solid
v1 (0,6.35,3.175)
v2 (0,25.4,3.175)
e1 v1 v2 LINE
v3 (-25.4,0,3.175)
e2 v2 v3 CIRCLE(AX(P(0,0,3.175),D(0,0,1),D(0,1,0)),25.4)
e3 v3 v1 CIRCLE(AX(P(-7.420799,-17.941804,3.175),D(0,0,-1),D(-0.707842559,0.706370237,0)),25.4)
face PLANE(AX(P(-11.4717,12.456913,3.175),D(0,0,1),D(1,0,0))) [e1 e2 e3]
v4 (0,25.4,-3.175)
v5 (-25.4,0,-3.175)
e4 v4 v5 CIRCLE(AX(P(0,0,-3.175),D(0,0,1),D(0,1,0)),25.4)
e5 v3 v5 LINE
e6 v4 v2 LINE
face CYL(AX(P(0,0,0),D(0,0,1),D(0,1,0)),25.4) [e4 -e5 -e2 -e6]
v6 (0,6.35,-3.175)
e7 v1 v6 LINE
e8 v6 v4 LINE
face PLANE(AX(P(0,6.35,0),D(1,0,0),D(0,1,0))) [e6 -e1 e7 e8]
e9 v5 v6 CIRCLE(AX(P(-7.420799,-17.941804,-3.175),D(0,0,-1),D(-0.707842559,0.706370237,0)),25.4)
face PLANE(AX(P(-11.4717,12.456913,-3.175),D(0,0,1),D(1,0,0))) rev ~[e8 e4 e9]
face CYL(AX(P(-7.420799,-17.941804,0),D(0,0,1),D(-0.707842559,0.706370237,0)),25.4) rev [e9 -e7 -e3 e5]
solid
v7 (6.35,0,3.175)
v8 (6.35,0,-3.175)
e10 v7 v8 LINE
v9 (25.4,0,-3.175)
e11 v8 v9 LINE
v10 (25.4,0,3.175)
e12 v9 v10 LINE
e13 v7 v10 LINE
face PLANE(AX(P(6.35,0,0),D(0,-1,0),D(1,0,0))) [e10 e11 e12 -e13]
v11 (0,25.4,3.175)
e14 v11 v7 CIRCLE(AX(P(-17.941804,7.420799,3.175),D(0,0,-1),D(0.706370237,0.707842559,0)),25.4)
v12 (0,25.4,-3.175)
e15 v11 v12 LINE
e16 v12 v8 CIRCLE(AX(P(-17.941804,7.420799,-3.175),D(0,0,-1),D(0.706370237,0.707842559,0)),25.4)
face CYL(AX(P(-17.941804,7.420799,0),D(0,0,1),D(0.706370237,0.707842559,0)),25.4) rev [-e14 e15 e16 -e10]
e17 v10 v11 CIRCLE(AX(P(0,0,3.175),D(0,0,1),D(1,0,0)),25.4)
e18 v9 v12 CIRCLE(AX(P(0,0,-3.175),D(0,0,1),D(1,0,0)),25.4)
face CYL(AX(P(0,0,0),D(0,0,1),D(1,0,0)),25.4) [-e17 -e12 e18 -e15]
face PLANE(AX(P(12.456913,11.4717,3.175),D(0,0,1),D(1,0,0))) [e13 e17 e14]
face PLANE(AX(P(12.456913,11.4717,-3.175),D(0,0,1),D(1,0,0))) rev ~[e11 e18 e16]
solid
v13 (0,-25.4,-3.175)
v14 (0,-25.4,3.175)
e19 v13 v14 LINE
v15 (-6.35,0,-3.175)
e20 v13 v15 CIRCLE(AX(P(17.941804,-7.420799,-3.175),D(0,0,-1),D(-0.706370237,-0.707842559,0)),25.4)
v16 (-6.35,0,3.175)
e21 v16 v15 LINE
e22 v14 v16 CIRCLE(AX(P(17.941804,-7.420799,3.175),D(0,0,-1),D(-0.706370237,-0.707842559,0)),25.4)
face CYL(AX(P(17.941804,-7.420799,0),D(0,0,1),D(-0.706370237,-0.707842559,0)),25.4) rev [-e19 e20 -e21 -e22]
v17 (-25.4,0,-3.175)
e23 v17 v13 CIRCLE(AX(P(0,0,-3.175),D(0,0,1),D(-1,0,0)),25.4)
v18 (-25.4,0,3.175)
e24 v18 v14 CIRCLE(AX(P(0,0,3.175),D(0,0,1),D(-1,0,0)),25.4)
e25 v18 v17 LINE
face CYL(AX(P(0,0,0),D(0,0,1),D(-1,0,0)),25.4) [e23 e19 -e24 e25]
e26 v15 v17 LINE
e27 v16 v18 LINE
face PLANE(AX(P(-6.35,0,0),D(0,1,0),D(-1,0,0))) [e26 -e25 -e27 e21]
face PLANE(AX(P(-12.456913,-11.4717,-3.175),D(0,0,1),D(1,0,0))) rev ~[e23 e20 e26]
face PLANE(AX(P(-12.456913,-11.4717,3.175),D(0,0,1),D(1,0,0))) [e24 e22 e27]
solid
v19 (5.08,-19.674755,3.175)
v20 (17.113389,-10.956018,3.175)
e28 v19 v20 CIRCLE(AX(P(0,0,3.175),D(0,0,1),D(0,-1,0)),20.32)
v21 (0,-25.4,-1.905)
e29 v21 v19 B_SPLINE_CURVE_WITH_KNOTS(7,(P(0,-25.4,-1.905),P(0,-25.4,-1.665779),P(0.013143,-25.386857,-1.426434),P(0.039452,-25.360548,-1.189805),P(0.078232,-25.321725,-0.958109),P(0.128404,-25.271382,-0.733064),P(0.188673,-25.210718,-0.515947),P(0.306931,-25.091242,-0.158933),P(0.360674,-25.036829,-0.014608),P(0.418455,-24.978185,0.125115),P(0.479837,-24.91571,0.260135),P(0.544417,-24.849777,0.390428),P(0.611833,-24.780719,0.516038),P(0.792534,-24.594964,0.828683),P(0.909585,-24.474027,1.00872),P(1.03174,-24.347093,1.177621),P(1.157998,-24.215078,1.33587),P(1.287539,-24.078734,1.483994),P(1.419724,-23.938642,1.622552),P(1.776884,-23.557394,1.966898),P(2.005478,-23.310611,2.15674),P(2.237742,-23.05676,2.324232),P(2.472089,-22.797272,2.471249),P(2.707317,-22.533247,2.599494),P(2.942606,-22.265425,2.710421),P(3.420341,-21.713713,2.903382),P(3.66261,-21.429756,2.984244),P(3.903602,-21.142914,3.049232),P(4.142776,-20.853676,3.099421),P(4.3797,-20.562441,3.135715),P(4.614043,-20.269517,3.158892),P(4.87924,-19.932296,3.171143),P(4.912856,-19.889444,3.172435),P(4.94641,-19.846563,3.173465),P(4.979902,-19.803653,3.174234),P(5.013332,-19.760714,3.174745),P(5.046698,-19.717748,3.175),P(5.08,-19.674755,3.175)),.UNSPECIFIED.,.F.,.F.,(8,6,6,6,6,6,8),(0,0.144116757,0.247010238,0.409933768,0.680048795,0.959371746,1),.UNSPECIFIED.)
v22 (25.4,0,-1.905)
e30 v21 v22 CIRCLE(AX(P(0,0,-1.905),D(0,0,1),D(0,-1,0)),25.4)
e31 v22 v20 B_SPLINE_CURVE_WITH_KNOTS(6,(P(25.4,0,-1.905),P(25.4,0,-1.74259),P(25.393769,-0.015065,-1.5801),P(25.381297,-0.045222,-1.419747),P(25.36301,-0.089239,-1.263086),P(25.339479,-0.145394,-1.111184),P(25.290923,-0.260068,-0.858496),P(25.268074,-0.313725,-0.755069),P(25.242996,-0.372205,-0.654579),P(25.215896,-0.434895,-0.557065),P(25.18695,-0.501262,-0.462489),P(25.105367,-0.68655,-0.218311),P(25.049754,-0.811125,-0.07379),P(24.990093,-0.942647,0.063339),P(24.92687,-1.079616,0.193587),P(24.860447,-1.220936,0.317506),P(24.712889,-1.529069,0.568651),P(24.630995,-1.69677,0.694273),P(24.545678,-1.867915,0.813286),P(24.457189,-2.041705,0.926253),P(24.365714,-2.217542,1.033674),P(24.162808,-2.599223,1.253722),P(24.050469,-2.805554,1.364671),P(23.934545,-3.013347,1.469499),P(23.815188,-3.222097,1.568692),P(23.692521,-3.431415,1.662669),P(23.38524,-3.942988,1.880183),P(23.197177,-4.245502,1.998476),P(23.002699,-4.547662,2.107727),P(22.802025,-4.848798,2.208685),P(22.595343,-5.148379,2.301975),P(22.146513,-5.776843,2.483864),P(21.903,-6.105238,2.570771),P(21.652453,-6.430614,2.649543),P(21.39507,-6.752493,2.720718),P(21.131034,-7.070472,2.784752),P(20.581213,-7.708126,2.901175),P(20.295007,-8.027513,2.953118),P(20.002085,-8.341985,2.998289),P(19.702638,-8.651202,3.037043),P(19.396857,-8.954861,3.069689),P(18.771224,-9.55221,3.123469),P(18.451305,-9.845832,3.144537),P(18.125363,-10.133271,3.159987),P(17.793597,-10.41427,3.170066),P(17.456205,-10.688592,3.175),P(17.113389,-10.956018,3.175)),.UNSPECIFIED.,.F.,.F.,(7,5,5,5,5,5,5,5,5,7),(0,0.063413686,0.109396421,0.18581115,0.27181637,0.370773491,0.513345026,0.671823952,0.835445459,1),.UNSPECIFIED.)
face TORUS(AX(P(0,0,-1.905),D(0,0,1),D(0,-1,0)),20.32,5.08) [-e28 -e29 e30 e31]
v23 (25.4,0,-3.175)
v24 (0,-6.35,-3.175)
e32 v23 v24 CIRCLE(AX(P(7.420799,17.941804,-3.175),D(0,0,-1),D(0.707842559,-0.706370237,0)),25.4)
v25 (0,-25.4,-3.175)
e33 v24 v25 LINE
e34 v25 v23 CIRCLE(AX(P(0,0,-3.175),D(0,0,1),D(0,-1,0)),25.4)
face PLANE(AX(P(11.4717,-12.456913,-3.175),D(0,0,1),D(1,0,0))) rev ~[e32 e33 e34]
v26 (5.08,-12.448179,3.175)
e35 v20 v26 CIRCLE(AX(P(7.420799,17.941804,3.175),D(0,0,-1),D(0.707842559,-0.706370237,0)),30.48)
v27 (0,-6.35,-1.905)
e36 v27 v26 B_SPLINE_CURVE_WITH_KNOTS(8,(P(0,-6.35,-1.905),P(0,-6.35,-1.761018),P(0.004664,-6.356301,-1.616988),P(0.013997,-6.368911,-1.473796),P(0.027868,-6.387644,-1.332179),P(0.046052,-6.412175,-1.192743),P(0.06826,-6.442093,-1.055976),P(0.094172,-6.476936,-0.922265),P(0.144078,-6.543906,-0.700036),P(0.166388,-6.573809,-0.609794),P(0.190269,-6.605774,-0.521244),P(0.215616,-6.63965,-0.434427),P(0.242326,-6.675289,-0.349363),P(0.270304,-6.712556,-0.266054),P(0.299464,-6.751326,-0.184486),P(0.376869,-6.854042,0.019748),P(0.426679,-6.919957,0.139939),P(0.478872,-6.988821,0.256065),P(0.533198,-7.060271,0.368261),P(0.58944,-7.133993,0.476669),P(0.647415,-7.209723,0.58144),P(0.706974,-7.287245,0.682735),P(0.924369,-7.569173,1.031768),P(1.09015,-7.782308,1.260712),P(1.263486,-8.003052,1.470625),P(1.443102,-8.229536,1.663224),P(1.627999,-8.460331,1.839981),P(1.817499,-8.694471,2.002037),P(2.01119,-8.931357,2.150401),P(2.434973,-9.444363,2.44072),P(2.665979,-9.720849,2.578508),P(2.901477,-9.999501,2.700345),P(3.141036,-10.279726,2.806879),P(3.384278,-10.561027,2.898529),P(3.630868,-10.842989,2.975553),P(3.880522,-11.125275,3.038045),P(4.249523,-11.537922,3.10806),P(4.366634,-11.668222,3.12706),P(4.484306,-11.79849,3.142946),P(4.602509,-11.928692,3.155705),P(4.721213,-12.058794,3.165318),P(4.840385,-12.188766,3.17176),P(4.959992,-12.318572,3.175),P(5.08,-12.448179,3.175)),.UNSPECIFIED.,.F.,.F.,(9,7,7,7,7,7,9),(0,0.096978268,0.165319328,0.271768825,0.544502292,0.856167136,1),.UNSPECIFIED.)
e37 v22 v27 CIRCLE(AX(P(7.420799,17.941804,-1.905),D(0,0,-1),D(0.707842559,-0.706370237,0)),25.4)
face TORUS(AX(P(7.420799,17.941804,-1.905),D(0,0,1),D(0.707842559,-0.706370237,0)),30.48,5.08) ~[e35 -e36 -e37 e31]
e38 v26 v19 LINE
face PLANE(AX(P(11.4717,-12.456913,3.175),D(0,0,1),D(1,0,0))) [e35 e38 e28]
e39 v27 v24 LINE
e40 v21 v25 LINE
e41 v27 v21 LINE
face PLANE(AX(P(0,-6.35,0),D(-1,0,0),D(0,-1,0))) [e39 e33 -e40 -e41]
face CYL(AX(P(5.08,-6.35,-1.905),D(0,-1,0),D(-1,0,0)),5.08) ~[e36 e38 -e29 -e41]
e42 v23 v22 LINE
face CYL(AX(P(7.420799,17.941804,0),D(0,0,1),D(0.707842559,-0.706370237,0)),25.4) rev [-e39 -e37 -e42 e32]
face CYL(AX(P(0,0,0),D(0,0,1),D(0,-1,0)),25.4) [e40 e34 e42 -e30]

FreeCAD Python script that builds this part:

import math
import FreeCAD as App
import Part
import Sketcher
Q = App.Units.Quantity


def edges_at(feature, points):
    """Names of the edges that pass closest to the given points."""
    edges = feature.Shape.Edges
    near = lambda p: min(range(len(edges)), key=lambda i: edges[i].distToShape(Part.Vertex(*p))[0])
    return sorted({f"Edge{near(p) + 1}" for p in points})

doc = App.newDocument("Part")
body = doc.addObject("PartDesign::Body", "Body")

sketch1 = body.newObject("Sketcher::SketchObject", "Sketch")
sketch1.AttachmentSupport = (doc.getObject("XY_Plane"), [""])
sketch1.MapMode = "FlatFace"
sketch1.addGeometry([
    Part.LineSegment(App.Vector(6, 0, 0), App.Vector(25, 0, 0)),
    Part.ArcOfCircle(Part.Circle(App.Vector(0, 0, 0), App.Vector(0, 0, 1), 25), math.radians(0), math.radians(90)),
    Part.ArcOfCircle(Part.Circle(App.Vector(-18, 7, 0), App.Vector(0, 0, 1), 25), math.radians(-17), math.radians(45)),
], False)
sketch1.addConstraint([
    Sketcher.Constraint("Coincident", 0, 2, 1, 1),
    Sketcher.Constraint("Coincident", 1, 2, 2, 2),
    Sketcher.Constraint("Coincident", 2, 1, 0, 1),
    Sketcher.Constraint("Horizontal", 0),
    Sketcher.Constraint("Coincident", 1, 3, -1, 1),
    Sketcher.Constraint("Equal", 1, 2),
    Sketcher.Constraint("PointOnObject", 0, 2, -1),
    Sketcher.Constraint("PointOnObject", 1, 2, -2),
    Sketcher.Constraint("Radius", 1, Q("1 in")),
    Sketcher.Constraint("DistanceX", 0, 1, 0, 2, Q("0.75 in")),
])
pad1 = body.newObject("PartDesign::Pad", "Pad")
pad1.Profile = sketch1
pad1.Length = Q("0.25 in")
pad1.Midplane = True
body2 = doc.addObject("PartDesign::Body", "Body001")

sketch2 = body2.newObject("Sketcher::SketchObject", "Sketch001")
sketch2.AttachmentSupport = (doc.getObject("XY_Plane001"), [""])
sketch2.MapMode = "FlatFace"
sketch2.addGeometry([
    Part.LineSegment(App.Vector(0, 6, 0), App.Vector(0, 25, 0)),
    Part.ArcOfCircle(Part.Circle(App.Vector(0, 0, 0), App.Vector(0, 0, 1), 25), math.radians(90), math.radians(180)),
    Part.ArcOfCircle(Part.Circle(App.Vector(-7, -18, 0), App.Vector(0, 0, 1), 25), math.radians(73), math.radians(135)),
], False)
sketch2.addConstraint([
    Sketcher.Constraint("Coincident", 0, 2, 1, 1),
    Sketcher.Constraint("Coincident", 1, 2, 2, 2),
    Sketcher.Constraint("Coincident", 2, 1, 0, 1),
    Sketcher.Constraint("Vertical", 0),
    Sketcher.Constraint("Coincident", 1, 3, -1, 1),
    Sketcher.Constraint("Equal", 1, 2),
    Sketcher.Constraint("PointOnObject", 0, 2, -2),
    Sketcher.Constraint("PointOnObject", 1, 2, -1),
    Sketcher.Constraint("Radius", 1, Q("1 in")),
    Sketcher.Constraint("DistanceY", 0, 1, 0, 2, Q("0.75 in")),
])
pad2 = body2.newObject("PartDesign::Pad", "Pad001")
pad2.Profile = sketch2
pad2.Length = Q("0.25 in")
pad2.Midplane = True
body3 = doc.addObject("PartDesign::Body", "Body002")

sketch3 = body3.newObject("Sketcher::SketchObject", "Sketch002")
sketch3.AttachmentSupport = (doc.getObject("XY_Plane002"), [""])
sketch3.MapMode = "FlatFace"
sketch3.addGeometry([
    Part.ArcOfCircle(Part.Circle(App.Vector(0, 0, 0), App.Vector(0, 0, 1), 25), math.radians(180), math.radians(270)),
    Part.ArcOfCircle(Part.Circle(App.Vector(18, -7, 0), App.Vector(0, 0, 1), 25), math.radians(163), math.radians(225)),
    Part.LineSegment(App.Vector(-6, 0, 0), App.Vector(-25, 0, 0)),
], False)
sketch3.addConstraint([
    Sketcher.Constraint("Coincident", 0, 2, 1, 2),
    Sketcher.Constraint("Coincident", 1, 1, 2, 1),
    Sketcher.Constraint("Coincident", 2, 2, 0, 1),
    Sketcher.Constraint("Horizontal", 2),
    Sketcher.Constraint("Coincident", 0, 3, -1, 1),
    Sketcher.Constraint("Equal", 0, 1),
    Sketcher.Constraint("PointOnObject", 0, 2, -2),
    Sketcher.Constraint("PointOnObject", 1, 1, -1),
    Sketcher.Constraint("Radius", 0, Q("1 in")),
    Sketcher.Constraint("DistanceX", 2, 2, 2, 1, Q("0.75 in")),
])
pad3 = body3.newObject("PartDesign::Pad", "Pad002")
pad3.Profile = sketch3
pad3.Length = Q("0.25 in")
pad3.Midplane = True
body4 = doc.addObject("PartDesign::Body", "Body003")

sketch4 = body4.newObject("Sketcher::SketchObject", "Sketch003")
sketch4.AttachmentSupport = (doc.getObject("XY_Plane003"), [""])
sketch4.MapMode = "FlatFace"
sketch4.addGeometry([
    Part.ArcOfCircle(Part.Circle(App.Vector(0, 0, 0), App.Vector(0, 0, 1), 25), math.radians(-90), math.radians(0)),
    Part.ArcOfCircle(Part.Circle(App.Vector(7, 18, 0), App.Vector(0, 0, 1), 25), math.radians(-107), math.radians(-45)),
    Part.LineSegment(App.Vector(0, -6, 0), App.Vector(0, -25, 0)),
], False)
sketch4.addConstraint([
    Sketcher.Constraint("Coincident", 0, 2, 1, 2),
    Sketcher.Constraint("Coincident", 1, 1, 2, 1),
    Sketcher.Constraint("Coincident", 2, 2, 0, 1),
    Sketcher.Constraint("Vertical", 2),
    Sketcher.Constraint("Coincident", 0, 3, -1, 1),
    Sketcher.Constraint("Equal", 0, 1),
    Sketcher.Constraint("PointOnObject", 0, 2, -1),
    Sketcher.Constraint("PointOnObject", 1, 1, -2),
    Sketcher.Constraint("Radius", 0, Q("1 in")),
    Sketcher.Constraint("DistanceY", 2, 2, 2, 1, Q("0.75 in")),
])
pad4 = body4.newObject("PartDesign::Pad", "Pad003")
pad4.Profile = sketch4
pad4.Length = Q("0.25 in")
pad4.Midplane = True
doc.recompute()

fillet = body4.newObject("PartDesign::Fillet", "Fillet")
fillet.Base = (pad4, edges_at(pad4, [(0, -15.875, 3.175), (17.961, -17.961, 3.175), (13.581, -6.7, 3.175)]))
fillet.Radius = Q("0.2 in")

doc.recompute()
